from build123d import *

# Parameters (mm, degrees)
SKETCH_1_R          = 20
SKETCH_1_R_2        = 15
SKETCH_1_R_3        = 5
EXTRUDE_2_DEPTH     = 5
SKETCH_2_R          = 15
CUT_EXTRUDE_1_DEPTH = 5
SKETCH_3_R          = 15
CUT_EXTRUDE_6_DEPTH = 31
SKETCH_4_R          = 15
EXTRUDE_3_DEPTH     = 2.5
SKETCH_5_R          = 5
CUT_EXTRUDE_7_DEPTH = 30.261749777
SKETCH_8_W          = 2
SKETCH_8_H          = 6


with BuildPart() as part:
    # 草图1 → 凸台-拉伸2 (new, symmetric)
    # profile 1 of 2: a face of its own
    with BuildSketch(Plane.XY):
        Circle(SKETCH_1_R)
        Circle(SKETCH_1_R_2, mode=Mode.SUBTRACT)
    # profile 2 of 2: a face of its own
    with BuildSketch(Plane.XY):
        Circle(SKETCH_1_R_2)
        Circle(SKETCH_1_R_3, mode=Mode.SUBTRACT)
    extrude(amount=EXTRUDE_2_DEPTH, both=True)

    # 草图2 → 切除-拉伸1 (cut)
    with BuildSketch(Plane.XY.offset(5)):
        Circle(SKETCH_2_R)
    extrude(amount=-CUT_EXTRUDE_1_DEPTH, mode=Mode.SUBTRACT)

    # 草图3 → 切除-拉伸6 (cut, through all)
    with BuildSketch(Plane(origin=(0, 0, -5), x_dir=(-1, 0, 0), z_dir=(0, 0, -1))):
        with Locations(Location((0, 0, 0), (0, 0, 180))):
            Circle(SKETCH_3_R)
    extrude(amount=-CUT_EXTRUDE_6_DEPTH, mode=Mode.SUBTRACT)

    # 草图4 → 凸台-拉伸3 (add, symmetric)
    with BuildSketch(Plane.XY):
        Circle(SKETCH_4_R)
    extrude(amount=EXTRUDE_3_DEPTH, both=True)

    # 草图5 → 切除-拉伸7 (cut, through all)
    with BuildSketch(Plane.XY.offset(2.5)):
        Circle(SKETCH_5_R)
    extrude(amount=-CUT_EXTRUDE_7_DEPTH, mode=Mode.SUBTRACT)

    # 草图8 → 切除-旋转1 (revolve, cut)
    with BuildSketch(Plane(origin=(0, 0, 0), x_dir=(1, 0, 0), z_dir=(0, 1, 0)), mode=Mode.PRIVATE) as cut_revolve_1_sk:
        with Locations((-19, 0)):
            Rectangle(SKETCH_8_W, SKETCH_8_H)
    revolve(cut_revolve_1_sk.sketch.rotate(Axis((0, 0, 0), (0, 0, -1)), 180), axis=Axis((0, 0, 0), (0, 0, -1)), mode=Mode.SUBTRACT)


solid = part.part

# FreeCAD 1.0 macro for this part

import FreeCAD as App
import Part
import Sketcher


def add_polygon(sketch, points):
    """Adds a closed chain of lines whose ends are joined by coincident constraints."""
    first, n = sketch.GeometryCount, len(points)
    for a, b in zip(points, points[1:] + points[:1]):
        sketch.addGeometry(Part.LineSegment(App.Vector(*a, 0), App.Vector(*b, 0)), False)
    for i in range(n):
        sketch.addConstraint(Sketcher.Constraint("Coincident", first + i, 2, first + (i + 1) % n, 1))

doc = App.newDocument("Part")
body = doc.addObject("PartDesign::Body", "Body")

sketch1 = body.newObject("Sketcher::SketchObject", "Sketch")
sketch1.AttachmentSupport = (doc.getObject("XY_Plane"), [""])
sketch1.MapMode = "FlatFace"
sketch1.addGeometry([
    Part.Circle(App.Vector(0, 0, 0), App.Vector(0, 0, 1), 20),
    Part.Circle(App.Vector(0, 0, 0), App.Vector(0, 0, 1), 5),
], False)
sketch1.addConstraint([
    Sketcher.Constraint("Coincident", 0, 3, -1, 1),
    Sketcher.Constraint("Coincident", 1, 3, -1, 1),
    Sketcher.Constraint("Diameter", 0, 40.0),
    Sketcher.Constraint("Diameter", 1, 10.0),
])
pad1 = body.newObject("PartDesign::Pad", "Pad")
pad1.Profile = sketch1
pad1.Length = 10
pad1.Midplane = True

sketch2 = body.newObject("Sketcher::SketchObject", "Sketch001")
sketch2.AttachmentSupport = (doc.getObject("XY_Plane"), [""])
sketch2.MapMode = "FlatFace"
sketch2.AttachmentOffset = App.Placement(App.Vector(0, 0, 5), App.Rotation())
sketch2.addGeometry(Part.Circle(App.Vector(0, 0, 0), App.Vector(0, 0, 1), 15), False)
sketch2.addConstraint([
    Sketcher.Constraint("Coincident", 0, 3, -1, 1),
    Sketcher.Constraint("Diameter", 0, 30.0),
])
pocket1 = body.newObject("PartDesign::Pocket", "Pocket")
pocket1.Profile = sketch2
pocket1.Length = 5

sketch3 = body.newObject("Sketcher::SketchObject", "Sketch002")
sketch3.AttachmentSupport = (doc.getObject("XY_Plane"), [""])
sketch3.MapMode = "FlatFace"
sketch3.AttachmentOffset = App.Placement(App.Vector(0, 0, -5), App.Rotation())
sketch3.addGeometry(Part.Circle(App.Vector(0, 0, 0), App.Vector(0, 0, 1), 15), False)
sketch3.addConstraint([
    Sketcher.Constraint("Coincident", 0, 3, -1, 1),
    Sketcher.Constraint("Diameter", 0, 30.0),
])
pocket2 = body.newObject("PartDesign::Pocket", "Pocket001")
pocket2.Profile = sketch3
pocket2.Type = "ThroughAll"
pocket2.Reversed = True

sketch4 = body.newObject("Sketcher::SketchObject", "Sketch003")
sketch4.AttachmentSupport = (doc.getObject("XY_Plane"), [""])
sketch4.MapMode = "FlatFace"
sketch4.addGeometry(Part.Circle(App.Vector(0, 0, 0), App.Vector(0, 0, 1), 15), False)
sketch4.addConstraint([
    Sketcher.Constraint("Coincident", 0, 3, -1, 1),
    Sketcher.Constraint("Diameter", 0, 30.0),
])
pad2 = body.newObject("PartDesign::Pad", "Pad001")
pad2.Profile = sketch4
pad2.Length = 5
pad2.Midplane = True

sketch5 = body.newObject("Sketcher::SketchObject", "Sketch004")
sketch5.AttachmentSupport = (doc.getObject("XY_Plane"), [""])
sketch5.MapMode = "FlatFace"
sketch5.AttachmentOffset = App.Placement(App.Vector(0, 0, 2.5), App.Rotation())
sketch5.addGeometry(Part.Circle(App.Vector(0, 0, 0), App.Vector(0, 0, 1), 5), False)
sketch5.addConstraint([
    Sketcher.Constraint("Coincident", 0, 3, -1, 1),
    Sketcher.Constraint("Diameter", 0, 10.0),
])
pocket3 = body.newObject("PartDesign::Pocket", "Pocket002")
pocket3.Profile = sketch5
pocket3.Type = "ThroughAll"

sketch6 = body.newObject("Sketcher::SketchObject", "Sketch005")
sketch6.AttachmentSupport = (doc.getObject("XZ_Plane"), [""])
sketch6.MapMode = "FlatFace"
add_polygon(sketch6, [(-20, -3), (-20, 3), (-18, 3), (-18, -3)])
sketch6.addConstraint([
    Sketcher.Constraint("Vertical", 0),
    Sketcher.Constraint("Horizontal", 1),
    Sketcher.Constraint("Vertical", 2),
    Sketcher.Constraint("Horizontal", 3),
    Sketcher.Constraint("DistanceX", 1, 1, 1, 2, 2.0),
    Sketcher.Constraint("DistanceY", 0, 1, 0, 2, 6.0),
    Sketcher.Constraint("DistanceX", 0, 2, -1, 1, 20.0),
    Sketcher.Constraint("DistanceY", -1, 1, 0, 2, 3.0),
])
groove = body.newObject("PartDesign::Groove", "Groove")
groove.Profile = sketch6
groove.ReferenceAxis = (sketch6, ["V_Axis"])
groove.Angle = 360

doc.recompute()
